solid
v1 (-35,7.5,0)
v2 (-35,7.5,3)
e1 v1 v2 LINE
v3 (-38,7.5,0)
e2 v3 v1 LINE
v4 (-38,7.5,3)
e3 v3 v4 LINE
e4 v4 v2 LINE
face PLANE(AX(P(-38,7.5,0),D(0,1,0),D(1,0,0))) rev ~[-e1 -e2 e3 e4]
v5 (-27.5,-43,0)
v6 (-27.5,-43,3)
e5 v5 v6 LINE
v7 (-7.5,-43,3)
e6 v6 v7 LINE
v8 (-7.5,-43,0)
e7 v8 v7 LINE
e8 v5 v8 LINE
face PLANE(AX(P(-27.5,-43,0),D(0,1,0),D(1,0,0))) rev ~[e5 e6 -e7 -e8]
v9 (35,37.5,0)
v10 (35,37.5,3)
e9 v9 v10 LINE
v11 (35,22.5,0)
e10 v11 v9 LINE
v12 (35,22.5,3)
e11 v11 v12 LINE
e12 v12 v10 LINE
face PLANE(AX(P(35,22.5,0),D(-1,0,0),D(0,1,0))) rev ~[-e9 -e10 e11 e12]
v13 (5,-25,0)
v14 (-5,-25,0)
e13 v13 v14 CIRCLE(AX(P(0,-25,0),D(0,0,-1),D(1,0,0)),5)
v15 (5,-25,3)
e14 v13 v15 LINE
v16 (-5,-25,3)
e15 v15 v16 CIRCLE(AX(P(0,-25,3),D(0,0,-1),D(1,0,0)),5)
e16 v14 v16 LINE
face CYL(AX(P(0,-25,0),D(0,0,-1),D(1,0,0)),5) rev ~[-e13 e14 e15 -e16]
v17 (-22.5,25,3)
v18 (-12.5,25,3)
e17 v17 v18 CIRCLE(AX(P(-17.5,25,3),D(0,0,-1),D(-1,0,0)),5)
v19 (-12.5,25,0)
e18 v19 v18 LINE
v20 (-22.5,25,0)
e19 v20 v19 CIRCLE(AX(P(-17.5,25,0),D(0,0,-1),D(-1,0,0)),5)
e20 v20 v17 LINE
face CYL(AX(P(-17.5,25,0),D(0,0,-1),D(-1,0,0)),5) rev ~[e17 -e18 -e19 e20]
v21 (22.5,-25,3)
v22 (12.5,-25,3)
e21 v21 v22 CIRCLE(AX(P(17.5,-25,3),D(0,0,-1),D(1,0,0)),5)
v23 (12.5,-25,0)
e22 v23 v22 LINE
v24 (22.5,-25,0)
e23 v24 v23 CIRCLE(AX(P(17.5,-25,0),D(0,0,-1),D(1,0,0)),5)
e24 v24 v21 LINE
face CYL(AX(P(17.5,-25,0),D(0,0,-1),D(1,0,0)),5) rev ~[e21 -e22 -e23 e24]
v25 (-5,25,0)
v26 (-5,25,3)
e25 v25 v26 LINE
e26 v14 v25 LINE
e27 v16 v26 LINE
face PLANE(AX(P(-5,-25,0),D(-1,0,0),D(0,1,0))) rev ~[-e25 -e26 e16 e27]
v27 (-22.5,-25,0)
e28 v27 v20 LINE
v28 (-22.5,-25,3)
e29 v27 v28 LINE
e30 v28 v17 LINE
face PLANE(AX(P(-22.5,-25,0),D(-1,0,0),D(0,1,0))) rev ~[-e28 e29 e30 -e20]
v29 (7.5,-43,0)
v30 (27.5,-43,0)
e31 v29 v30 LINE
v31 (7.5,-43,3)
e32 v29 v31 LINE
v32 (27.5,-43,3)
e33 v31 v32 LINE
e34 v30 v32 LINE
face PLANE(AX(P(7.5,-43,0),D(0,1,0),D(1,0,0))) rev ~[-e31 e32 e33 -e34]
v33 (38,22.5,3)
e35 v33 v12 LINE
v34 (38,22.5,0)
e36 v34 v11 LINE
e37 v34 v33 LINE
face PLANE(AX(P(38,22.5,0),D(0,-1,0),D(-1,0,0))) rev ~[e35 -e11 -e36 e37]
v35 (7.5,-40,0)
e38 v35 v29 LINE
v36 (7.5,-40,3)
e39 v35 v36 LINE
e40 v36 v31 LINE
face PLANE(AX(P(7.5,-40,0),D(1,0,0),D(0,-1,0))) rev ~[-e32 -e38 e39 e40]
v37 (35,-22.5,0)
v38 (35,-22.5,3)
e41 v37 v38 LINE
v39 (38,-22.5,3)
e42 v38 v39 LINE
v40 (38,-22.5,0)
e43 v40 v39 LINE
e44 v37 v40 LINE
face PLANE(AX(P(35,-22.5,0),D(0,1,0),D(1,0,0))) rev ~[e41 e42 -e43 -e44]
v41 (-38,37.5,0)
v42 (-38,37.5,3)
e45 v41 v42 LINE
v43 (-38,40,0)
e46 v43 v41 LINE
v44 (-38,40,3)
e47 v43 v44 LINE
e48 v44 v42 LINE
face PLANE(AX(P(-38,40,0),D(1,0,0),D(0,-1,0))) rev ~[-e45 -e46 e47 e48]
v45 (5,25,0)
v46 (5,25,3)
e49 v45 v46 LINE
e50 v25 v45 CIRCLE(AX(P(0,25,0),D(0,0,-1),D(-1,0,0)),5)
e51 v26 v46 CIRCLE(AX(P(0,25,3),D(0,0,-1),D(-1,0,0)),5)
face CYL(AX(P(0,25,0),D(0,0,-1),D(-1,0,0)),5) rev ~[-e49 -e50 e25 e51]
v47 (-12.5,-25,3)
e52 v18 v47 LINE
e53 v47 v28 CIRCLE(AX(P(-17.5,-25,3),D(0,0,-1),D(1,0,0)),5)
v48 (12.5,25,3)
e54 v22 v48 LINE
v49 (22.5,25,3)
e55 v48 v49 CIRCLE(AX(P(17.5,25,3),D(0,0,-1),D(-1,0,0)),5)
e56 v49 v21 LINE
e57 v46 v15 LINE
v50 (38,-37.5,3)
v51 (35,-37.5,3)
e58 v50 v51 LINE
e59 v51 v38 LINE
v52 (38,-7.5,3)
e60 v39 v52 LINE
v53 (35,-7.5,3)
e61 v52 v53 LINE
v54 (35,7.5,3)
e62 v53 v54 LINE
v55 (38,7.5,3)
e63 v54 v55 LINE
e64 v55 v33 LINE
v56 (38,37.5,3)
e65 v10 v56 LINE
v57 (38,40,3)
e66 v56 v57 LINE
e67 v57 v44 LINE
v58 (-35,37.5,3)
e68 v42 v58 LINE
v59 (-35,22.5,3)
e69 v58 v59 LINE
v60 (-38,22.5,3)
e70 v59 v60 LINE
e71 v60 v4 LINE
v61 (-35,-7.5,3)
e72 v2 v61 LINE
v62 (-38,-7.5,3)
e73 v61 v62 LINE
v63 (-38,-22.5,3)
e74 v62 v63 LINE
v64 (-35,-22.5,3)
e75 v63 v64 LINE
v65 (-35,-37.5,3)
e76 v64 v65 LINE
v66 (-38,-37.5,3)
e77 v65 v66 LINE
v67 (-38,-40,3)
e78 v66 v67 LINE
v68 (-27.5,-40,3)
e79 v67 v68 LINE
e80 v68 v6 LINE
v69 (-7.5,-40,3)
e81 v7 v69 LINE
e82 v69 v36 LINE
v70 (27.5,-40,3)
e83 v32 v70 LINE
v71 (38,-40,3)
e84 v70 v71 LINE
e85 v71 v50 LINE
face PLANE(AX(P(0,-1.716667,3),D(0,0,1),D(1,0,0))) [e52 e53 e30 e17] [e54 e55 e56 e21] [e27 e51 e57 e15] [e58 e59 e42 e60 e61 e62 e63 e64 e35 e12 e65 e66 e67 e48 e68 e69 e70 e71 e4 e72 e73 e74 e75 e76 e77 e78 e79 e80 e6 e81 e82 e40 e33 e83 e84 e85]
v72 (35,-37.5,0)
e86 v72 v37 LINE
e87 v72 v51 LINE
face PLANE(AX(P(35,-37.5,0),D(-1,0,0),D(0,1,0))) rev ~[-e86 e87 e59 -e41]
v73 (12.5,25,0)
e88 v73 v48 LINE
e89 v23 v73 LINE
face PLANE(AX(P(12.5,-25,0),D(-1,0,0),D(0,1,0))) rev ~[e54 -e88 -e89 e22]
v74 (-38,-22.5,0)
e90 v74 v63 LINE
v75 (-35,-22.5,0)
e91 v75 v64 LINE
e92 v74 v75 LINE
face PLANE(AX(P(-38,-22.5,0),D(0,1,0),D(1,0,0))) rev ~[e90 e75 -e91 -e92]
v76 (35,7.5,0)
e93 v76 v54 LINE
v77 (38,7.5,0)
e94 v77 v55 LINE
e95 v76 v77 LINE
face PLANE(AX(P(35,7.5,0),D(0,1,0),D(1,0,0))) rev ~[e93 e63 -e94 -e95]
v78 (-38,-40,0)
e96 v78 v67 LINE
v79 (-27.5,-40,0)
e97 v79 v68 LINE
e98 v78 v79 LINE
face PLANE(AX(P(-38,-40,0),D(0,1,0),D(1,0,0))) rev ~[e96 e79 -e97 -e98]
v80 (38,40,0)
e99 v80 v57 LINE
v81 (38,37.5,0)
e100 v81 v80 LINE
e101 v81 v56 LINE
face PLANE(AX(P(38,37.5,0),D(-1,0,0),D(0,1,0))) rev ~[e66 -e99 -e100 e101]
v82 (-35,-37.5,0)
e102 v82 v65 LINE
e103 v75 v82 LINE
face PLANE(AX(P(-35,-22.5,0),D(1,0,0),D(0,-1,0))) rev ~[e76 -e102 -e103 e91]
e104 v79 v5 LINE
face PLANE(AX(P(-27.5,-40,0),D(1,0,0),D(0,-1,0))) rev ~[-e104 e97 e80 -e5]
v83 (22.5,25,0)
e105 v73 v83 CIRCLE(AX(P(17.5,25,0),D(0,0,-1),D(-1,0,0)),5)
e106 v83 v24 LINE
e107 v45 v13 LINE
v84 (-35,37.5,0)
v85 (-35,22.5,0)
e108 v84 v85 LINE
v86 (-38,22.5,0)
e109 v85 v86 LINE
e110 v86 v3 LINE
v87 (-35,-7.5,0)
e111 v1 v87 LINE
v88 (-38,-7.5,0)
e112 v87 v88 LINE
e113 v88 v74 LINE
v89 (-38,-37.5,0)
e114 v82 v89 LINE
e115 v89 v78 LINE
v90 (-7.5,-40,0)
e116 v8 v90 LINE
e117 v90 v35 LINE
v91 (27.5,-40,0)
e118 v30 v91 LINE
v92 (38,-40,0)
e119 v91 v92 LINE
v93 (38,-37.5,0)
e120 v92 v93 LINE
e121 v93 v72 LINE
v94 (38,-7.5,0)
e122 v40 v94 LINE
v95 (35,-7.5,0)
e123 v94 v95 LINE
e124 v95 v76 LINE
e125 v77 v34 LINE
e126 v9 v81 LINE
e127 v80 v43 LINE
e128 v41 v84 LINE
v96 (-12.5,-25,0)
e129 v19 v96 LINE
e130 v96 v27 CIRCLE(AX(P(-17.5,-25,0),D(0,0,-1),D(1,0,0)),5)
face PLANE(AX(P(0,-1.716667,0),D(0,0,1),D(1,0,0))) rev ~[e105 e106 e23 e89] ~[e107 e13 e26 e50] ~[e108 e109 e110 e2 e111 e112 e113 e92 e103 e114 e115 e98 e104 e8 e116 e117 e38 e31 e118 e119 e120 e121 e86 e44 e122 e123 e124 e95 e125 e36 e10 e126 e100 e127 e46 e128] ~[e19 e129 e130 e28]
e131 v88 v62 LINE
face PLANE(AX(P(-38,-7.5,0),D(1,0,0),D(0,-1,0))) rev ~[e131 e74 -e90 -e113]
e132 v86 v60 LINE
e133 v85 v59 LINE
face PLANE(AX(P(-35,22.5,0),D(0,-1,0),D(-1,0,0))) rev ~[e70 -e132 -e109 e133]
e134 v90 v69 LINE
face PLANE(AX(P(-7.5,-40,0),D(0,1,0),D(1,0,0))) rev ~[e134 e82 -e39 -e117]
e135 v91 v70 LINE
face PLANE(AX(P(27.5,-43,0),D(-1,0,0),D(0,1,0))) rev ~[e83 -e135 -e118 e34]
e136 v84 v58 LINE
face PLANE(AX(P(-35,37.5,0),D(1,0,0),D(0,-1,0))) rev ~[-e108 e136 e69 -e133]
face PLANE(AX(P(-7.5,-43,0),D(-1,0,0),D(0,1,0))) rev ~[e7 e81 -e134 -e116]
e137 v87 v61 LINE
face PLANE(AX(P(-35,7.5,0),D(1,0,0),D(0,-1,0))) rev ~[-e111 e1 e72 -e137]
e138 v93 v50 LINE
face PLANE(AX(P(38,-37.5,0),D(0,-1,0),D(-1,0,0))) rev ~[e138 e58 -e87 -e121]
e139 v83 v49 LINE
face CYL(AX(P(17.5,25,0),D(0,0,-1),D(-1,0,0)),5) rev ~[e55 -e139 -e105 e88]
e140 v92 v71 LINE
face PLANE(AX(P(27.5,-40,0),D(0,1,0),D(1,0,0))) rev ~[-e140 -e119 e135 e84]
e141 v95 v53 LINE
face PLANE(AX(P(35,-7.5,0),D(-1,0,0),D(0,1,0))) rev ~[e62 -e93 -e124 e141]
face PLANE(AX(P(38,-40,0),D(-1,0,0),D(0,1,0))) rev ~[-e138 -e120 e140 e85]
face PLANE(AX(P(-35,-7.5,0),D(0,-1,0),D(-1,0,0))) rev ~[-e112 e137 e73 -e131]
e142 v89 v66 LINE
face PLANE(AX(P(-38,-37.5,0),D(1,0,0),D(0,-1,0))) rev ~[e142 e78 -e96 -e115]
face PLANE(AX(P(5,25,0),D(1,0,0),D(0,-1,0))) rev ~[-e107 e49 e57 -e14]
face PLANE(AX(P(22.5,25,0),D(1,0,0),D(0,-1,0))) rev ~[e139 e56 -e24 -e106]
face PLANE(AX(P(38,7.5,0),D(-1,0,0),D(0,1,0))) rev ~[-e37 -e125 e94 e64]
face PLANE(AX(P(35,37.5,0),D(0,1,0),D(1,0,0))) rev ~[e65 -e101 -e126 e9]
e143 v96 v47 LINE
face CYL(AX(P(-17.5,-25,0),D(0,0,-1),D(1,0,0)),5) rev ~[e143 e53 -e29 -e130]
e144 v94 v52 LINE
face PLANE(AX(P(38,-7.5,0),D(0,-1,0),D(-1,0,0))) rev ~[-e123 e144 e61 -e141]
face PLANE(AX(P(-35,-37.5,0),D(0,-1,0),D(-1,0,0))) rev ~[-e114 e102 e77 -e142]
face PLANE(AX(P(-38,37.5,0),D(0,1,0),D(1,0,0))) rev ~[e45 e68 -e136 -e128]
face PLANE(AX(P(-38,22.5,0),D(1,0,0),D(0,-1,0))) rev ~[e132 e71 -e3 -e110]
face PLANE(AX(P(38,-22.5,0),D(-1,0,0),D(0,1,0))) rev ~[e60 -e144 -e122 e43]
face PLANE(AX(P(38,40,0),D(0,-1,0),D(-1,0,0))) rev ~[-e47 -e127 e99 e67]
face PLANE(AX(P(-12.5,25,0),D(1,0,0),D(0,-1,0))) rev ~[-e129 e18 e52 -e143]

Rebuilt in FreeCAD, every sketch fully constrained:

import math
import FreeCAD as App
import Part
import Sketcher
from FreeCAD import Vector

doc = App.newDocument("Part")
body = doc.addObject("PartDesign::Body", "Body")

# Sketch on XY plane
sketch1 = body.newObject("Sketcher::SketchObject", "Sketch")
sketch1.AttachmentSupport = (doc.getObject("XY_Plane"), [""])
sketch1.MapMode = "FlatFace"
sketch1.addGeometry(Part.LineSegment(Vector(-38, 40, 0), Vector(-38, 37.5, 0)), False)
sketch1.addGeometry(Part.LineSegment(Vector(-38, 37.5, 0), Vector(-35, 37.5, 0)), False)
sketch1.addGeometry(Part.LineSegment(Vector(-35, 37.5, 0), Vector(-35, 22.5, 0)), False)
sketch1.addGeometry(Part.LineSegment(Vector(-35, 22.5, 0), Vector(-38, 22.5, 0)), False)
sketch1.addGeometry(Part.LineSegment(Vector(-38, 22.5, 0), Vector(-38, 7.5, 0)), False)
sketch1.addGeometry(Part.LineSegment(Vector(-38, 7.5, 0), Vector(-35, 7.5, 0)), False)
sketch1.addGeometry(Part.LineSegment(Vector(-35, 7.5, 0), Vector(-35, -7.5, 0)), False)
sketch1.addGeometry(Part.LineSegment(Vector(-35, -7.5, 0), Vector(-38, -7.5, 0)), False)
sketch1.addGeometry(Part.LineSegment(Vector(-38, -7.5, 0), Vector(-38, -22.5, 0)), False)
sketch1.addGeometry(Part.LineSegment(Vector(-38, -22.5, 0), Vector(-35, -22.5, 0)), False)
sketch1.addGeometry(Part.LineSegment(Vector(-35, -22.5, 0), Vector(-35, -37.5, 0)), False)
sketch1.addGeometry(Part.LineSegment(Vector(-35, -37.5, 0), Vector(-38, -37.5, 0)), False)
sketch1.addGeometry(Part.LineSegment(Vector(-38, -37.5, 0), Vector(-38, -40, 0)), False)
sketch1.addGeometry(Part.LineSegment(Vector(-38, -40, 0), Vector(-27.5, -40, 0)), False)
sketch1.addGeometry(Part.LineSegment(Vector(-27.5, -40, 0), Vector(-27.5, -43, 0)), False)
sketch1.addGeometry(Part.LineSegment(Vector(-27.5, -43, 0), Vector(-7.5, -43, 0)), False)
sketch1.addGeometry(Part.LineSegment(Vector(-7.5, -43, 0), Vector(-7.5, -40, 0)), False)
sketch1.addGeometry(Part.LineSegment(Vector(-7.5, -40, 0), Vector(7.5, -40, 0)), False)
sketch1.addGeometry(Part.LineSegment(Vector(7.5, -40, 0), Vector(7.5, -43, 0)), False)
sketch1.addGeometry(Part.LineSegment(Vector(7.5, -43, 0), Vector(27.5, -43, 0)), False)
sketch1.addGeometry(Part.LineSegment(Vector(27.5, -43, 0), Vector(27.5, -40, 0)), False)
sketch1.addGeometry(Part.LineSegment(Vector(27.5, -40, 0), Vector(38, -40, 0)), False)
sketch1.addGeometry(Part.LineSegment(Vector(38, -40, 0), Vector(38, -37.5, 0)), False)
sketch1.addGeometry(Part.LineSegment(Vector(38, -37.5, 0), Vector(35, -37.5, 0)), False)
sketch1.addGeometry(Part.LineSegment(Vector(35, -37.5, 0), Vector(35, -22.5, 0)), False)
sketch1.addGeometry(Part.LineSegment(Vector(35, -22.5, 0), Vector(38, -22.5, 0)), False)
sketch1.addGeometry(Part.LineSegment(Vector(38, -22.5, 0), Vector(38, -7.5, 0)), False)
sketch1.addGeometry(Part.LineSegment(Vector(38, -7.5, 0), Vector(35, -7.5, 0)), False)
sketch1.addGeometry(Part.LineSegment(Vector(35, -7.5, 0), Vector(35, 7.5, 0)), False)
sketch1.addGeometry(Part.LineSegment(Vector(35, 7.5, 0), Vector(38, 7.5, 0)), False)
sketch1.addGeometry(Part.LineSegment(Vector(38, 7.5, 0), Vector(38, 22.5, 0)), False)
sketch1.addGeometry(Part.LineSegment(Vector(38, 22.5, 0), Vector(35, 22.5, 0)), False)
sketch1.addGeometry(Part.LineSegment(Vector(35, 22.5, 0), Vector(35, 37.5, 0)), False)
sketch1.addGeometry(Part.LineSegment(Vector(35, 37.5, 0), Vector(38, 37.5, 0)), False)
sketch1.addGeometry(Part.LineSegment(Vector(38, 37.5, 0), Vector(38, 40, 0)), False)
sketch1.addGeometry(Part.LineSegment(Vector(38, 40, 0), Vector(-38, 40, 0)), False)
sketch1.addGeometry(Part.ArcOfCircle(Part.Circle(Vector(-17.5, 25, 0), Vector(0, 0, 1), 5), math.radians(0), math.radians(180)), False)
sketch1.addGeometry(Part.LineSegment(Vector(-12.5, 25, 0), Vector(-12.5, -25, 0)), False)
sketch1.addGeometry(Part.ArcOfCircle(Part.Circle(Vector(-17.5, -25, 0), Vector(0, 0, 1), 5), math.radians(180), math.radians(360)), False)
sketch1.addGeometry(Part.LineSegment(Vector(-22.5, -25, 0), Vector(-22.5, 25, 0)), False)
sketch1.addGeometry(Part.LineSegment(Vector(5, 25, 0), Vector(5, -25, 0)), False)
sketch1.addGeometry(Part.ArcOfCircle(Part.Circle(Vector(0, -25, 0), Vector(0, 0, 1), 5), math.radians(180), math.radians(360)), False)
sketch1.addGeometry(Part.LineSegment(Vector(-5, -25, 0), Vector(-5, 25, 0)), False)
sketch1.addGeometry(Part.ArcOfCircle(Part.Circle(Vector(0, 25, 0), Vector(0, 0, 1), 5), math.radians(0), math.radians(180)), False)
sketch1.addGeometry(Part.LineSegment(Vector(22.5, 25, 0), Vector(22.5, -25, 0)), False)
sketch1.addGeometry(Part.ArcOfCircle(Part.Circle(Vector(17.5, -25, 0), Vector(0, 0, 1), 5), math.radians(180), math.radians(360)), False)
sketch1.addGeometry(Part.LineSegment(Vector(12.5, -25, 0), Vector(12.5, 25, 0)), False)
sketch1.addGeometry(Part.ArcOfCircle(Part.Circle(Vector(17.5, 25, 0), Vector(0, 0, 1), 5), math.radians(0), math.radians(180)), False)
sketch1.addConstraint(Sketcher.Constraint("Coincident", 0, 2, 1, 1))
sketch1.addConstraint(Sketcher.Constraint("Coincident", 1, 2, 2, 1))
sketch1.addConstraint(Sketcher.Constraint("Coincident", 2, 2, 3, 1))
sketch1.addConstraint(Sketcher.Constraint("Coincident", 3, 2, 4, 1))
sketch1.addConstraint(Sketcher.Constraint("Coincident", 4, 2, 5, 1))
sketch1.addConstraint(Sketcher.Constraint("Coincident", 5, 2, 6, 1))
sketch1.addConstraint(Sketcher.Constraint("Coincident", 6, 2, 7, 1))
sketch1.addConstraint(Sketcher.Constraint("Coincident", 7, 2, 8, 1))
sketch1.addConstraint(Sketcher.Constraint("Coincident", 8, 2, 9, 1))
sketch1.addConstraint(Sketcher.Constraint("Coincident", 9, 2, 10, 1))
sketch1.addConstraint(Sketcher.Constraint("Coincident", 10, 2, 11, 1))
sketch1.addConstraint(Sketcher.Constraint("Coincident", 11, 2, 12, 1))
sketch1.addConstraint(Sketcher.Constraint("Coincident", 12, 2, 13, 1))
sketch1.addConstraint(Sketcher.Constraint("Coincident", 13, 2, 14, 1))
sketch1.addConstraint(Sketcher.Constraint("Coincident", 14, 2, 15, 1))
sketch1.addConstraint(Sketcher.Constraint("Coincident", 15, 2, 16, 1))
sketch1.addConstraint(Sketcher.Constraint("Coincident", 16, 2, 17, 1))
sketch1.addConstraint(Sketcher.Constraint("Coincident", 17, 2, 18, 1))
sketch1.addConstraint(Sketcher.Constraint("Coincident", 18, 2, 19, 1))
sketch1.addConstraint(Sketcher.Constraint("Coincident", 19, 2, 20, 1))
sketch1.addConstraint(Sketcher.Constraint("Coincident", 20, 2, 21, 1))
sketch1.addConstraint(Sketcher.Constraint("Coincident", 21, 2, 22, 1))
sketch1.addConstraint(Sketcher.Constraint("Coincident", 22, 2, 23, 1))
sketch1.addConstraint(Sketcher.Constraint("Coincident", 23, 2, 24, 1))
sketch1.addConstraint(Sketcher.Constraint("Coincident", 24, 2, 25, 1))
sketch1.addConstraint(Sketcher.Constraint("Coincident", 25, 2, 26, 1))
sketch1.addConstraint(Sketcher.Constraint("Coincident", 26, 2, 27, 1))
sketch1.addConstraint(Sketcher.Constraint("Coincident", 27, 2, 28, 1))
sketch1.addConstraint(Sketcher.Constraint("Coincident", 28, 2, 29, 1))
sketch1.addConstraint(Sketcher.Constraint("Coincident", 29, 2, 30, 1))
sketch1.addConstraint(Sketcher.Constraint("Coincident", 30, 2, 31, 1))
sketch1.addConstraint(Sketcher.Constraint("Coincident", 31, 2, 32, 1))
sketch1.addConstraint(Sketcher.Constraint("Coincident", 32, 2, 33, 1))
sketch1.addConstraint(Sketcher.Constraint("Coincident", 33, 2, 34, 1))
sketch1.addConstraint(Sketcher.Constraint("Coincident", 34, 2, 35, 1))
sketch1.addConstraint(Sketcher.Constraint("Coincident", 35, 2, 0, 1))
sketch1.addConstraint(Sketcher.Constraint("Tangent", 36, 1, 37, 1))
sketch1.addConstraint(Sketcher.Constraint("Tangent", 37, 2, 38, 2))
sketch1.addConstraint(Sketcher.Constraint("Tangent", 38, 1, 39, 1))
sketch1.addConstraint(Sketcher.Constraint("Tangent", 39, 2, 36, 2))
sketch1.addConstraint(Sketcher.Constraint("Tangent", 40, 2, 41, 2))
sketch1.addConstraint(Sketcher.Constraint("Tangent", 41, 1, 42, 1))
sketch1.addConstraint(Sketcher.Constraint("Tangent", 42, 2, 43, 2))
sketch1.addConstraint(Sketcher.Constraint("Tangent", 43, 1, 40, 1))
sketch1.addConstraint(Sketcher.Constraint("Tangent", 44, 2, 45, 2))
sketch1.addConstraint(Sketcher.Constraint("Tangent", 45, 1, 46, 1))
sketch1.addConstraint(Sketcher.Constraint("Tangent", 46, 2, 47, 2))
sketch1.addConstraint(Sketcher.Constraint("Tangent", 47, 1, 44, 1))
sketch1.addConstraint(Sketcher.Constraint("Vertical", 0))
sketch1.addConstraint(Sketcher.Constraint("Horizontal", 1))
sketch1.addConstraint(Sketcher.Constraint("Vertical", 2))
sketch1.addConstraint(Sketcher.Constraint("Horizontal", 3))
sketch1.addConstraint(Sketcher.Constraint("Vertical", 4))
sketch1.addConstraint(Sketcher.Constraint("Horizontal", 5))
sketch1.addConstraint(Sketcher.Constraint("Vertical", 6))
sketch1.addConstraint(Sketcher.Constraint("Horizontal", 7))
sketch1.addConstraint(Sketcher.Constraint("Vertical", 8))
sketch1.addConstraint(Sketcher.Constraint("Horizontal", 9))
sketch1.addConstraint(Sketcher.Constraint("Vertical", 10))
sketch1.addConstraint(Sketcher.Constraint("Horizontal", 11))
sketch1.addConstraint(Sketcher.Constraint("Vertical", 12))
sketch1.addConstraint(Sketcher.Constraint("Horizontal", 13))
sketch1.addConstraint(Sketcher.Constraint("Vertical", 14))
sketch1.addConstraint(Sketcher.Constraint("Horizontal", 15))
sketch1.addConstraint(Sketcher.Constraint("Vertical", 16))
sketch1.addConstraint(Sketcher.Constraint("Horizontal", 17))
sketch1.addConstraint(Sketcher.Constraint("Vertical", 18))
sketch1.addConstraint(Sketcher.Constraint("Horizontal", 19))
sketch1.addConstraint(Sketcher.Constraint("Vertical", 20))
sketch1.addConstraint(Sketcher.Constraint("Horizontal", 21))
sketch1.addConstraint(Sketcher.Constraint("Vertical", 22))
sketch1.addConstraint(Sketcher.Constraint("Horizontal", 23))
sketch1.addConstraint(Sketcher.Constraint("Vertical", 24))
sketch1.addConstraint(Sketcher.Constraint("Horizontal", 25))
sketch1.addConstraint(Sketcher.Constraint("Vertical", 26))
sketch1.addConstraint(Sketcher.Constraint("Horizontal", 27))
sketch1.addConstraint(Sketcher.Constraint("Vertical", 28))
sketch1.addConstraint(Sketcher.Constraint("Horizontal", 29))
sketch1.addConstraint(Sketcher.Constraint("Vertical", 30))
sketch1.addConstraint(Sketcher.Constraint("Horizontal", 31))
sketch1.addConstraint(Sketcher.Constraint("Vertical", 32))
sketch1.addConstraint(Sketcher.Constraint("Horizontal", 33))
sketch1.addConstraint(Sketcher.Constraint("Vertical", 34))
sketch1.addConstraint(Sketcher.Constraint("Horizontal", 35))
sketch1.addConstraint(Sketcher.Constraint("Vertical", 37))
sketch1.addConstraint(Sketcher.Constraint("Vertical", 39))
sketch1.addConstraint(Sketcher.Constraint("Vertical", 40))
sketch1.addConstraint(Sketcher.Constraint("Vertical", 42))
sketch1.addConstraint(Sketcher.Constraint("Vertical", 44))
sketch1.addConstraint(Sketcher.Constraint("Vertical", 46))
sketch1.addConstraint(Sketcher.Constraint("Equal", 38, 41))
sketch1.addConstraint(Sketcher.Constraint("Equal", 43, 45))
sketch1.addConstraint(Sketcher.Constraint("Symmetric", 41, 3, 43, 3, -1, 1))
sketch1.addConstraint(Sketcher.Constraint("Symmetric", 36, 3, 45, 3, -1, 1))
sketch1.addConstraint(Sketcher.Constraint("Symmetric", 0, 2, 22, 2, -1, 1))
sketch1.addConstraint(Sketcher.Constraint("Symmetric", 2, 2, 24, 2, -1, 1))
sketch1.addConstraint(Sketcher.Constraint("Symmetric", 4, 2, 26, 2, -1, 1))
sketch1.addConstraint(Sketcher.Constraint("Symmetric", 6, 2, 28, 2, -1, 1))
sketch1.addConstraint(Sketcher.Constraint("Symmetric", 8, 2, 30, 2, -1, 1))
sketch1.addConstraint(Sketcher.Constraint("Symmetric", 10, 2, 32, 2, -1, 1))
sketch1.addConstraint(Sketcher.Constraint("Symmetric", 12, 2, 34, 2, -1, 1))
sketch1.addConstraint(Sketcher.Constraint("Symmetric", 15, 2, 18, 2, -2))
sketch1.addConstraint(Sketcher.Constraint("Symmetric", 13, 2, 20, 2, -2))
sketch1.addConstraint(Sketcher.Constraint("Symmetric", 11, 2, 22, 2, -2))
sketch1.addConstraint(Sketcher.Constraint("Symmetric", 9, 2, 24, 2, -2))
sketch1.addConstraint(Sketcher.Constraint("Symmetric", 7, 2, 26, 2, -2))
sketch1.addConstraint(Sketcher.Constraint("Horizontal", 38, 3, 41, 3))
sketch1.addConstraint(Sketcher.Constraint("Horizontal", 36, 3, 43, 3))
sketch1.addConstraint(Sketcher.Constraint("Horizontal", 43, 3, 47, 3))
sketch1.addConstraint(Sketcher.Constraint("Horizontal", 13, 2, 16, 2))
sketch1.addConstraint(Sketcher.Constraint("Vertical", 0, 2, 3, 2))
sketch1.addConstraint(Sketcher.Constraint("Vertical", 2, 2, 5, 2))
sketch1.addConstraint(Sketcher.Constraint("Equal", 17, 2))
sketch1.addConstraint(Sketcher.Constraint("Equal", 2, 4))
sketch1.addConstraint(Sketcher.Constraint("Equal", 4, 6))
sketch1.addConstraint(Sketcher.Constraint("Equal", 33, 14))
sketch1.addConstraint(Sketcher.Constraint("Radius", 36, 5.0))
sketch1.addConstraint(Sketcher.Constraint("DistanceX", 1, 1, 1, 2, 3.0))
sketch1.addConstraint(Sketcher.Constraint("DistanceX", 15, 1, 15, 2, 20.0))
sketch1.addConstraint(Sketcher.Constraint("DistanceX", 17, 1, 17, 2, 15.0))
sketch1.addConstraint(Sketcher.Constraint("DistanceX", 35, 2, 35, 1, 76.0))
sketch1.addConstraint(Sketcher.Constraint("DistanceY", 37, 2, 37, 1, 50.0))
sketch1.addConstraint(Sketcher.Constraint("DistanceY", 0, 2, 0, 1, 2.5))
sketch1.addConstraint(Sketcher.Constraint("DistanceX", 38, 3, 45, 3, 35.0))
pad1 = body.newObject("PartDesign::Pad", "Pad")
pad1.Profile = sketch1
pad1.Length = 3

doc.recompute()
